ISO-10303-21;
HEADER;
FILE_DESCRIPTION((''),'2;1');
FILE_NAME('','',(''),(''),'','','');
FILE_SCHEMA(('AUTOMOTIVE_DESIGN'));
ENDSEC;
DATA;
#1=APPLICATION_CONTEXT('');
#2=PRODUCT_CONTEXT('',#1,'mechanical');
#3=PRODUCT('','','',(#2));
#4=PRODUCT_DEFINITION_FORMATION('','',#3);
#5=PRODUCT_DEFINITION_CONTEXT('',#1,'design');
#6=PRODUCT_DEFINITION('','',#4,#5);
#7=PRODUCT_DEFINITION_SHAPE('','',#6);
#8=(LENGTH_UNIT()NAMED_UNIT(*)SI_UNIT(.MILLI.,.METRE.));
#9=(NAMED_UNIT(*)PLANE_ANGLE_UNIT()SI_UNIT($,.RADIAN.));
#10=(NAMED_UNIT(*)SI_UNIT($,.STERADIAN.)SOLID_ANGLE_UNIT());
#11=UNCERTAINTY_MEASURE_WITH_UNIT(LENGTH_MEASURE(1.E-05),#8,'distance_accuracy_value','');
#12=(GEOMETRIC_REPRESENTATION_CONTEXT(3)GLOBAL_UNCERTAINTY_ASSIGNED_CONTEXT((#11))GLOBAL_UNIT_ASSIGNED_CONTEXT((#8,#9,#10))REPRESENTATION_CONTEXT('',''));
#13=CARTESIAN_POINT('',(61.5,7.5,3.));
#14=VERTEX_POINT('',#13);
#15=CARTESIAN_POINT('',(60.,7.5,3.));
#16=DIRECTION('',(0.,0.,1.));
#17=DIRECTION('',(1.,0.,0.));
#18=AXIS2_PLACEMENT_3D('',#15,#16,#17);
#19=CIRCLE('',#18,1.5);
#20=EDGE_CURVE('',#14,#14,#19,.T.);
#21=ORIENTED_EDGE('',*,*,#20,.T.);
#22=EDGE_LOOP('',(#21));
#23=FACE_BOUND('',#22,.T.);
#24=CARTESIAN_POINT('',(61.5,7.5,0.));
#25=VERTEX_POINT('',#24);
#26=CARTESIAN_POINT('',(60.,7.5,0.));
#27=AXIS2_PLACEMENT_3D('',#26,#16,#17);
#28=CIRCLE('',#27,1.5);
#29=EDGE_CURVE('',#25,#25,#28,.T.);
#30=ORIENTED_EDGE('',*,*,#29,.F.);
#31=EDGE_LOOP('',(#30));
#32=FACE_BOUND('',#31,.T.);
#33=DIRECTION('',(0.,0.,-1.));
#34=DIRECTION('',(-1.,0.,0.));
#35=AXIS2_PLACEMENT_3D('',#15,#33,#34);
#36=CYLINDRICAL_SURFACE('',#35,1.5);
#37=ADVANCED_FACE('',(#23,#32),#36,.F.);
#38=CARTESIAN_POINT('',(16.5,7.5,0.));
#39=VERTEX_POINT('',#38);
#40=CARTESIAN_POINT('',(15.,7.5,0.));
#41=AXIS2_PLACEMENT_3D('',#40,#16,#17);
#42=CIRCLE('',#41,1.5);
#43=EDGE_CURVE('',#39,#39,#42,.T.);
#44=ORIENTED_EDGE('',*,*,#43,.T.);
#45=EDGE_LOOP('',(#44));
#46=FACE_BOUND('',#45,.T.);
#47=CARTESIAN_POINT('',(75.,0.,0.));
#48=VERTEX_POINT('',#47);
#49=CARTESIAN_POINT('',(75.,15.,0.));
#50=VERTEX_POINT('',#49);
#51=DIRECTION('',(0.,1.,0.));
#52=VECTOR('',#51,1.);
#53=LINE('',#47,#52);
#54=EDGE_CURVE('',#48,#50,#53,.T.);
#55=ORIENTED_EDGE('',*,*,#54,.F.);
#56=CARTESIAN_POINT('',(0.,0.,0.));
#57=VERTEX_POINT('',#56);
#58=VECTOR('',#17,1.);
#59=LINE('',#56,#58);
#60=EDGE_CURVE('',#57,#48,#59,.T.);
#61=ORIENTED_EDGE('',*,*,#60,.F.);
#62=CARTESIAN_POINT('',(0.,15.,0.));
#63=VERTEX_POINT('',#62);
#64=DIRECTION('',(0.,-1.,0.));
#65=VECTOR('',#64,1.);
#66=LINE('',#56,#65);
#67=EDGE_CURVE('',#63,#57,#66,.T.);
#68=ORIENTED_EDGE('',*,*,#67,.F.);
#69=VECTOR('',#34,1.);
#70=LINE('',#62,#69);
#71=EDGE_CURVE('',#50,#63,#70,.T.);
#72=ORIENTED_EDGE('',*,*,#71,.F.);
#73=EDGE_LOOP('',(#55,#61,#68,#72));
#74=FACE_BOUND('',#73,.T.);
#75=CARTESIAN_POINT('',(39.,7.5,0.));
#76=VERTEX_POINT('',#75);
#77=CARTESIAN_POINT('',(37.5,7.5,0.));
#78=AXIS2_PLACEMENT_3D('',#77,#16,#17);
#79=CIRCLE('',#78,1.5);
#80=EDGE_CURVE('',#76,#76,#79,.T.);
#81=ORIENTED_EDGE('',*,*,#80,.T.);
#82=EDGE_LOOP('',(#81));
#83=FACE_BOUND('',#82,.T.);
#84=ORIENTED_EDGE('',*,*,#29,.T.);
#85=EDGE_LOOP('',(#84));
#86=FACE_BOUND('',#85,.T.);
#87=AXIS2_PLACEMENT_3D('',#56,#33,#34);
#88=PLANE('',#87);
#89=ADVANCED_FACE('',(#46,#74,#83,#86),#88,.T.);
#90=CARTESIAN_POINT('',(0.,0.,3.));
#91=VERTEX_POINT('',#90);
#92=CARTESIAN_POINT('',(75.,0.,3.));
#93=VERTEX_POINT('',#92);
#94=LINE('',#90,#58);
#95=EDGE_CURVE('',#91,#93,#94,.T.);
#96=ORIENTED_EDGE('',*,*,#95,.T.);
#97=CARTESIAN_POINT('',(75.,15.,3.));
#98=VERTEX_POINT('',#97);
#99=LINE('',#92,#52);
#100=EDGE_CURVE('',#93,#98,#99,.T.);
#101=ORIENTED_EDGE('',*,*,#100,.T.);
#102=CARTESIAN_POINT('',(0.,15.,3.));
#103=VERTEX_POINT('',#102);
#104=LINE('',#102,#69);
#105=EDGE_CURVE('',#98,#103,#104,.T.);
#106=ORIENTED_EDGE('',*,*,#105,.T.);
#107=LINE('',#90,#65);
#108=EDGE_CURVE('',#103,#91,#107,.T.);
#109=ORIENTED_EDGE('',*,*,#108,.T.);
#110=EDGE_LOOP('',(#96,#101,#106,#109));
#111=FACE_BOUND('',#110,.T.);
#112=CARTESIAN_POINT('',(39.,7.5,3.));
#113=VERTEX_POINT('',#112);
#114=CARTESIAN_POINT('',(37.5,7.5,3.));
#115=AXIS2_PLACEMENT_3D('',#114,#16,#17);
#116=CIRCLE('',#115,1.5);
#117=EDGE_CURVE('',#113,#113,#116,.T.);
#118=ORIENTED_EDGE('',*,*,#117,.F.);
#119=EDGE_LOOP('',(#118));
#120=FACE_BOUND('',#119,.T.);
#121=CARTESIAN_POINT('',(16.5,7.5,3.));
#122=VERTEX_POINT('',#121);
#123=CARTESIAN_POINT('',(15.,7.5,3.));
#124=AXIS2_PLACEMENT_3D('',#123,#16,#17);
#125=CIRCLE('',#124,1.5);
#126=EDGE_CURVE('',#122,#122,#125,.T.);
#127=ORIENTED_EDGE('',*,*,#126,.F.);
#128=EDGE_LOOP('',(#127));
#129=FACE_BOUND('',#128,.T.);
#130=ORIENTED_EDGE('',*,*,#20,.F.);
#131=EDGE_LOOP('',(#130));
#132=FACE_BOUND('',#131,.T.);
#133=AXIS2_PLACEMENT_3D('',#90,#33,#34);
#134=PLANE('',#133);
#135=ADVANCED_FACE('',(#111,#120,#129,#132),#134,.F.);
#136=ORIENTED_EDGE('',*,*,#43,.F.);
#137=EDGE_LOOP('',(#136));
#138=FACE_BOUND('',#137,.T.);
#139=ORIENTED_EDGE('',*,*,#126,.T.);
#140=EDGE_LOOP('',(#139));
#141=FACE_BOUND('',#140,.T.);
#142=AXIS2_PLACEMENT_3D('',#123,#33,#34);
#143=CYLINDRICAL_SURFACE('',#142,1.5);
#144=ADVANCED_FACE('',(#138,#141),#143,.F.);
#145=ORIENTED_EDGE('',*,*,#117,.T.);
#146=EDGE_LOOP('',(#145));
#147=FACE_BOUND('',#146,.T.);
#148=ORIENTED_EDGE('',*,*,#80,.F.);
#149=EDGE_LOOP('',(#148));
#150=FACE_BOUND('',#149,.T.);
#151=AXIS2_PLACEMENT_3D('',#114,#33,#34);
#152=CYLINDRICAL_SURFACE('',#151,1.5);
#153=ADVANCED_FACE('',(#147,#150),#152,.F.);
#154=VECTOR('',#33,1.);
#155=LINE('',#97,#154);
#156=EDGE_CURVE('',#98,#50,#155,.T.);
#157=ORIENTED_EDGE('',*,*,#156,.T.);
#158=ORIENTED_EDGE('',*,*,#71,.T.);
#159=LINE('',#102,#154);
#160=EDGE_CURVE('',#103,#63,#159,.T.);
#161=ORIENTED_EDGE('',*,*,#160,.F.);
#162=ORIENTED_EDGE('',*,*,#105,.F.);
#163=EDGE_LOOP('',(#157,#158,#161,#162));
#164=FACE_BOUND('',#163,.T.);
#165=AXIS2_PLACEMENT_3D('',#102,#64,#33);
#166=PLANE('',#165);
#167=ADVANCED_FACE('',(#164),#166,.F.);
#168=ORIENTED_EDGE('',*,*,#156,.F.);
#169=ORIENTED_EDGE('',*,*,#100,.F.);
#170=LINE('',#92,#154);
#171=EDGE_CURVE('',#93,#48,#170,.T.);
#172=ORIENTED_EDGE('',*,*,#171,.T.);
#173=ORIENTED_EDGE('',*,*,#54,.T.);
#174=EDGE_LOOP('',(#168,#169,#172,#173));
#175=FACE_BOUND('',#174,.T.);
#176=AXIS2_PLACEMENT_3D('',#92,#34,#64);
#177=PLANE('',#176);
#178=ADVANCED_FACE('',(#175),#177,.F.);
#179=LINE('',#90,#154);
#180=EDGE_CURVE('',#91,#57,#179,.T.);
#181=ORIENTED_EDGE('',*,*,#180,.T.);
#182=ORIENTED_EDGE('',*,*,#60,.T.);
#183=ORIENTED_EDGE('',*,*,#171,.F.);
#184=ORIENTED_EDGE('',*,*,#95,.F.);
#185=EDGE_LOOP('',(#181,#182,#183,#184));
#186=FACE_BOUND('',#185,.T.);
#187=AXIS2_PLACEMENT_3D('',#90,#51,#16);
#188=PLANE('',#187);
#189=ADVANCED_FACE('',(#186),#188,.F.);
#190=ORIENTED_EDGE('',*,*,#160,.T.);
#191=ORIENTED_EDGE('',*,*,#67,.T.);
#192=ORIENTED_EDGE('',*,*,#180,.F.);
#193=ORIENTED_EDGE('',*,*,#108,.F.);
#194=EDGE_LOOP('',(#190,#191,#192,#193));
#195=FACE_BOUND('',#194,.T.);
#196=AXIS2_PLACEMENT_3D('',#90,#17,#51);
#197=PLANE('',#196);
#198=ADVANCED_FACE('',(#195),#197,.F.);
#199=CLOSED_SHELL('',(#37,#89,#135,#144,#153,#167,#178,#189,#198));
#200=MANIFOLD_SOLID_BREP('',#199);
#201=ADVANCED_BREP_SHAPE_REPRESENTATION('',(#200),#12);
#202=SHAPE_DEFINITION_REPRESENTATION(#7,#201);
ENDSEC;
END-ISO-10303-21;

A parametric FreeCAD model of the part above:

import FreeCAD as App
import Part
import Sketcher
Q = App.Units.Quantity


def add_polygon(sketch, points):
    """Adds a closed chain of lines whose ends are joined by coincident constraints."""
    first, n = sketch.GeometryCount, len(points)
    for a, b in zip(points, points[1:] + points[:1]):
        sketch.addGeometry(Part.LineSegment(App.Vector(*a, 0), App.Vector(*b, 0)), False)
    for i in range(n):
        sketch.addConstraint(Sketcher.Constraint("Coincident", first + i, 2, first + (i + 1) % n, 1))

doc = App.newDocument("Part")
body = doc.addObject("PartDesign::Body", "Body")

sketch1 = body.newObject("Sketcher::SketchObject", "Sketch")
sketch1.AttachmentSupport = (doc.getObject("XY_Plane"), [""])
sketch1.MapMode = "FlatFace"
add_polygon(sketch1, [(0, 15), (0, 0), (75, 0), (75, 15)])
sketch1.addGeometry(Part.Circle(App.Vector(15, 7.5, 0), App.Vector(0, 0, 1), 1.5), False)
sketch1.addGeometry(Part.Circle(App.Vector(37.5, 7.5, 0), App.Vector(0, 0, 1), 1.5), False)
sketch1.addGeometry(Part.Circle(App.Vector(60, 7.5, 0), App.Vector(0, 0, 1), 1.5), False)
sketch1.addConstraint(Sketcher.Constraint("Vertical", 0))
sketch1.addConstraint(Sketcher.Constraint("Horizontal", 1))
sketch1.addConstraint(Sketcher.Constraint("Vertical", 2))
sketch1.addConstraint(Sketcher.Constraint("Horizontal", 3))
sketch1.addConstraint(Sketcher.Constraint("Coincident", 0, 2, -1, 1))
sketch1.addConstraint(Sketcher.Constraint("Equal", 4, 5))
sketch1.addConstraint(Sketcher.Constraint("Equal", 5, 6))
sketch1.addConstraint(Sketcher.Constraint("Horizontal", 4, 3, 5, 3))
sketch1.addConstraint(Sketcher.Constraint("Horizontal", 5, 3, 6, 3))
sketch1.addConstraint(Sketcher.Constraint("Diameter", 4, Q("3 mm")))
sketch1.addConstraint(Sketcher.Constraint("DistanceX", 1, 1, 1, 2, Q("75 mm")))
sketch1.addConstraint(Sketcher.Constraint("DistanceY", 0, 2, 0, 1, Q("15 mm")))
sketch1.addConstraint(Sketcher.Constraint("DistanceX", -1, 1, 4, 3, Q("15 mm")))
sketch1.addConstraint(Sketcher.Constraint("DistanceX", -1, 1, 6, 3, Q("60 mm")))
sketch1.addConstraint(Sketcher.Constraint("DistanceY", -1, 1, 4, 3, Q("7.5 mm")))
sketch1.addConstraint(Sketcher.Constraint("DistanceX", -1, 1, 5, 3, Q("37.5 mm")))
pad1 = body.newObject("PartDesign::Pad", "Pad")
pad1.Profile = sketch1
pad1.Length = 3

doc.recompute()
